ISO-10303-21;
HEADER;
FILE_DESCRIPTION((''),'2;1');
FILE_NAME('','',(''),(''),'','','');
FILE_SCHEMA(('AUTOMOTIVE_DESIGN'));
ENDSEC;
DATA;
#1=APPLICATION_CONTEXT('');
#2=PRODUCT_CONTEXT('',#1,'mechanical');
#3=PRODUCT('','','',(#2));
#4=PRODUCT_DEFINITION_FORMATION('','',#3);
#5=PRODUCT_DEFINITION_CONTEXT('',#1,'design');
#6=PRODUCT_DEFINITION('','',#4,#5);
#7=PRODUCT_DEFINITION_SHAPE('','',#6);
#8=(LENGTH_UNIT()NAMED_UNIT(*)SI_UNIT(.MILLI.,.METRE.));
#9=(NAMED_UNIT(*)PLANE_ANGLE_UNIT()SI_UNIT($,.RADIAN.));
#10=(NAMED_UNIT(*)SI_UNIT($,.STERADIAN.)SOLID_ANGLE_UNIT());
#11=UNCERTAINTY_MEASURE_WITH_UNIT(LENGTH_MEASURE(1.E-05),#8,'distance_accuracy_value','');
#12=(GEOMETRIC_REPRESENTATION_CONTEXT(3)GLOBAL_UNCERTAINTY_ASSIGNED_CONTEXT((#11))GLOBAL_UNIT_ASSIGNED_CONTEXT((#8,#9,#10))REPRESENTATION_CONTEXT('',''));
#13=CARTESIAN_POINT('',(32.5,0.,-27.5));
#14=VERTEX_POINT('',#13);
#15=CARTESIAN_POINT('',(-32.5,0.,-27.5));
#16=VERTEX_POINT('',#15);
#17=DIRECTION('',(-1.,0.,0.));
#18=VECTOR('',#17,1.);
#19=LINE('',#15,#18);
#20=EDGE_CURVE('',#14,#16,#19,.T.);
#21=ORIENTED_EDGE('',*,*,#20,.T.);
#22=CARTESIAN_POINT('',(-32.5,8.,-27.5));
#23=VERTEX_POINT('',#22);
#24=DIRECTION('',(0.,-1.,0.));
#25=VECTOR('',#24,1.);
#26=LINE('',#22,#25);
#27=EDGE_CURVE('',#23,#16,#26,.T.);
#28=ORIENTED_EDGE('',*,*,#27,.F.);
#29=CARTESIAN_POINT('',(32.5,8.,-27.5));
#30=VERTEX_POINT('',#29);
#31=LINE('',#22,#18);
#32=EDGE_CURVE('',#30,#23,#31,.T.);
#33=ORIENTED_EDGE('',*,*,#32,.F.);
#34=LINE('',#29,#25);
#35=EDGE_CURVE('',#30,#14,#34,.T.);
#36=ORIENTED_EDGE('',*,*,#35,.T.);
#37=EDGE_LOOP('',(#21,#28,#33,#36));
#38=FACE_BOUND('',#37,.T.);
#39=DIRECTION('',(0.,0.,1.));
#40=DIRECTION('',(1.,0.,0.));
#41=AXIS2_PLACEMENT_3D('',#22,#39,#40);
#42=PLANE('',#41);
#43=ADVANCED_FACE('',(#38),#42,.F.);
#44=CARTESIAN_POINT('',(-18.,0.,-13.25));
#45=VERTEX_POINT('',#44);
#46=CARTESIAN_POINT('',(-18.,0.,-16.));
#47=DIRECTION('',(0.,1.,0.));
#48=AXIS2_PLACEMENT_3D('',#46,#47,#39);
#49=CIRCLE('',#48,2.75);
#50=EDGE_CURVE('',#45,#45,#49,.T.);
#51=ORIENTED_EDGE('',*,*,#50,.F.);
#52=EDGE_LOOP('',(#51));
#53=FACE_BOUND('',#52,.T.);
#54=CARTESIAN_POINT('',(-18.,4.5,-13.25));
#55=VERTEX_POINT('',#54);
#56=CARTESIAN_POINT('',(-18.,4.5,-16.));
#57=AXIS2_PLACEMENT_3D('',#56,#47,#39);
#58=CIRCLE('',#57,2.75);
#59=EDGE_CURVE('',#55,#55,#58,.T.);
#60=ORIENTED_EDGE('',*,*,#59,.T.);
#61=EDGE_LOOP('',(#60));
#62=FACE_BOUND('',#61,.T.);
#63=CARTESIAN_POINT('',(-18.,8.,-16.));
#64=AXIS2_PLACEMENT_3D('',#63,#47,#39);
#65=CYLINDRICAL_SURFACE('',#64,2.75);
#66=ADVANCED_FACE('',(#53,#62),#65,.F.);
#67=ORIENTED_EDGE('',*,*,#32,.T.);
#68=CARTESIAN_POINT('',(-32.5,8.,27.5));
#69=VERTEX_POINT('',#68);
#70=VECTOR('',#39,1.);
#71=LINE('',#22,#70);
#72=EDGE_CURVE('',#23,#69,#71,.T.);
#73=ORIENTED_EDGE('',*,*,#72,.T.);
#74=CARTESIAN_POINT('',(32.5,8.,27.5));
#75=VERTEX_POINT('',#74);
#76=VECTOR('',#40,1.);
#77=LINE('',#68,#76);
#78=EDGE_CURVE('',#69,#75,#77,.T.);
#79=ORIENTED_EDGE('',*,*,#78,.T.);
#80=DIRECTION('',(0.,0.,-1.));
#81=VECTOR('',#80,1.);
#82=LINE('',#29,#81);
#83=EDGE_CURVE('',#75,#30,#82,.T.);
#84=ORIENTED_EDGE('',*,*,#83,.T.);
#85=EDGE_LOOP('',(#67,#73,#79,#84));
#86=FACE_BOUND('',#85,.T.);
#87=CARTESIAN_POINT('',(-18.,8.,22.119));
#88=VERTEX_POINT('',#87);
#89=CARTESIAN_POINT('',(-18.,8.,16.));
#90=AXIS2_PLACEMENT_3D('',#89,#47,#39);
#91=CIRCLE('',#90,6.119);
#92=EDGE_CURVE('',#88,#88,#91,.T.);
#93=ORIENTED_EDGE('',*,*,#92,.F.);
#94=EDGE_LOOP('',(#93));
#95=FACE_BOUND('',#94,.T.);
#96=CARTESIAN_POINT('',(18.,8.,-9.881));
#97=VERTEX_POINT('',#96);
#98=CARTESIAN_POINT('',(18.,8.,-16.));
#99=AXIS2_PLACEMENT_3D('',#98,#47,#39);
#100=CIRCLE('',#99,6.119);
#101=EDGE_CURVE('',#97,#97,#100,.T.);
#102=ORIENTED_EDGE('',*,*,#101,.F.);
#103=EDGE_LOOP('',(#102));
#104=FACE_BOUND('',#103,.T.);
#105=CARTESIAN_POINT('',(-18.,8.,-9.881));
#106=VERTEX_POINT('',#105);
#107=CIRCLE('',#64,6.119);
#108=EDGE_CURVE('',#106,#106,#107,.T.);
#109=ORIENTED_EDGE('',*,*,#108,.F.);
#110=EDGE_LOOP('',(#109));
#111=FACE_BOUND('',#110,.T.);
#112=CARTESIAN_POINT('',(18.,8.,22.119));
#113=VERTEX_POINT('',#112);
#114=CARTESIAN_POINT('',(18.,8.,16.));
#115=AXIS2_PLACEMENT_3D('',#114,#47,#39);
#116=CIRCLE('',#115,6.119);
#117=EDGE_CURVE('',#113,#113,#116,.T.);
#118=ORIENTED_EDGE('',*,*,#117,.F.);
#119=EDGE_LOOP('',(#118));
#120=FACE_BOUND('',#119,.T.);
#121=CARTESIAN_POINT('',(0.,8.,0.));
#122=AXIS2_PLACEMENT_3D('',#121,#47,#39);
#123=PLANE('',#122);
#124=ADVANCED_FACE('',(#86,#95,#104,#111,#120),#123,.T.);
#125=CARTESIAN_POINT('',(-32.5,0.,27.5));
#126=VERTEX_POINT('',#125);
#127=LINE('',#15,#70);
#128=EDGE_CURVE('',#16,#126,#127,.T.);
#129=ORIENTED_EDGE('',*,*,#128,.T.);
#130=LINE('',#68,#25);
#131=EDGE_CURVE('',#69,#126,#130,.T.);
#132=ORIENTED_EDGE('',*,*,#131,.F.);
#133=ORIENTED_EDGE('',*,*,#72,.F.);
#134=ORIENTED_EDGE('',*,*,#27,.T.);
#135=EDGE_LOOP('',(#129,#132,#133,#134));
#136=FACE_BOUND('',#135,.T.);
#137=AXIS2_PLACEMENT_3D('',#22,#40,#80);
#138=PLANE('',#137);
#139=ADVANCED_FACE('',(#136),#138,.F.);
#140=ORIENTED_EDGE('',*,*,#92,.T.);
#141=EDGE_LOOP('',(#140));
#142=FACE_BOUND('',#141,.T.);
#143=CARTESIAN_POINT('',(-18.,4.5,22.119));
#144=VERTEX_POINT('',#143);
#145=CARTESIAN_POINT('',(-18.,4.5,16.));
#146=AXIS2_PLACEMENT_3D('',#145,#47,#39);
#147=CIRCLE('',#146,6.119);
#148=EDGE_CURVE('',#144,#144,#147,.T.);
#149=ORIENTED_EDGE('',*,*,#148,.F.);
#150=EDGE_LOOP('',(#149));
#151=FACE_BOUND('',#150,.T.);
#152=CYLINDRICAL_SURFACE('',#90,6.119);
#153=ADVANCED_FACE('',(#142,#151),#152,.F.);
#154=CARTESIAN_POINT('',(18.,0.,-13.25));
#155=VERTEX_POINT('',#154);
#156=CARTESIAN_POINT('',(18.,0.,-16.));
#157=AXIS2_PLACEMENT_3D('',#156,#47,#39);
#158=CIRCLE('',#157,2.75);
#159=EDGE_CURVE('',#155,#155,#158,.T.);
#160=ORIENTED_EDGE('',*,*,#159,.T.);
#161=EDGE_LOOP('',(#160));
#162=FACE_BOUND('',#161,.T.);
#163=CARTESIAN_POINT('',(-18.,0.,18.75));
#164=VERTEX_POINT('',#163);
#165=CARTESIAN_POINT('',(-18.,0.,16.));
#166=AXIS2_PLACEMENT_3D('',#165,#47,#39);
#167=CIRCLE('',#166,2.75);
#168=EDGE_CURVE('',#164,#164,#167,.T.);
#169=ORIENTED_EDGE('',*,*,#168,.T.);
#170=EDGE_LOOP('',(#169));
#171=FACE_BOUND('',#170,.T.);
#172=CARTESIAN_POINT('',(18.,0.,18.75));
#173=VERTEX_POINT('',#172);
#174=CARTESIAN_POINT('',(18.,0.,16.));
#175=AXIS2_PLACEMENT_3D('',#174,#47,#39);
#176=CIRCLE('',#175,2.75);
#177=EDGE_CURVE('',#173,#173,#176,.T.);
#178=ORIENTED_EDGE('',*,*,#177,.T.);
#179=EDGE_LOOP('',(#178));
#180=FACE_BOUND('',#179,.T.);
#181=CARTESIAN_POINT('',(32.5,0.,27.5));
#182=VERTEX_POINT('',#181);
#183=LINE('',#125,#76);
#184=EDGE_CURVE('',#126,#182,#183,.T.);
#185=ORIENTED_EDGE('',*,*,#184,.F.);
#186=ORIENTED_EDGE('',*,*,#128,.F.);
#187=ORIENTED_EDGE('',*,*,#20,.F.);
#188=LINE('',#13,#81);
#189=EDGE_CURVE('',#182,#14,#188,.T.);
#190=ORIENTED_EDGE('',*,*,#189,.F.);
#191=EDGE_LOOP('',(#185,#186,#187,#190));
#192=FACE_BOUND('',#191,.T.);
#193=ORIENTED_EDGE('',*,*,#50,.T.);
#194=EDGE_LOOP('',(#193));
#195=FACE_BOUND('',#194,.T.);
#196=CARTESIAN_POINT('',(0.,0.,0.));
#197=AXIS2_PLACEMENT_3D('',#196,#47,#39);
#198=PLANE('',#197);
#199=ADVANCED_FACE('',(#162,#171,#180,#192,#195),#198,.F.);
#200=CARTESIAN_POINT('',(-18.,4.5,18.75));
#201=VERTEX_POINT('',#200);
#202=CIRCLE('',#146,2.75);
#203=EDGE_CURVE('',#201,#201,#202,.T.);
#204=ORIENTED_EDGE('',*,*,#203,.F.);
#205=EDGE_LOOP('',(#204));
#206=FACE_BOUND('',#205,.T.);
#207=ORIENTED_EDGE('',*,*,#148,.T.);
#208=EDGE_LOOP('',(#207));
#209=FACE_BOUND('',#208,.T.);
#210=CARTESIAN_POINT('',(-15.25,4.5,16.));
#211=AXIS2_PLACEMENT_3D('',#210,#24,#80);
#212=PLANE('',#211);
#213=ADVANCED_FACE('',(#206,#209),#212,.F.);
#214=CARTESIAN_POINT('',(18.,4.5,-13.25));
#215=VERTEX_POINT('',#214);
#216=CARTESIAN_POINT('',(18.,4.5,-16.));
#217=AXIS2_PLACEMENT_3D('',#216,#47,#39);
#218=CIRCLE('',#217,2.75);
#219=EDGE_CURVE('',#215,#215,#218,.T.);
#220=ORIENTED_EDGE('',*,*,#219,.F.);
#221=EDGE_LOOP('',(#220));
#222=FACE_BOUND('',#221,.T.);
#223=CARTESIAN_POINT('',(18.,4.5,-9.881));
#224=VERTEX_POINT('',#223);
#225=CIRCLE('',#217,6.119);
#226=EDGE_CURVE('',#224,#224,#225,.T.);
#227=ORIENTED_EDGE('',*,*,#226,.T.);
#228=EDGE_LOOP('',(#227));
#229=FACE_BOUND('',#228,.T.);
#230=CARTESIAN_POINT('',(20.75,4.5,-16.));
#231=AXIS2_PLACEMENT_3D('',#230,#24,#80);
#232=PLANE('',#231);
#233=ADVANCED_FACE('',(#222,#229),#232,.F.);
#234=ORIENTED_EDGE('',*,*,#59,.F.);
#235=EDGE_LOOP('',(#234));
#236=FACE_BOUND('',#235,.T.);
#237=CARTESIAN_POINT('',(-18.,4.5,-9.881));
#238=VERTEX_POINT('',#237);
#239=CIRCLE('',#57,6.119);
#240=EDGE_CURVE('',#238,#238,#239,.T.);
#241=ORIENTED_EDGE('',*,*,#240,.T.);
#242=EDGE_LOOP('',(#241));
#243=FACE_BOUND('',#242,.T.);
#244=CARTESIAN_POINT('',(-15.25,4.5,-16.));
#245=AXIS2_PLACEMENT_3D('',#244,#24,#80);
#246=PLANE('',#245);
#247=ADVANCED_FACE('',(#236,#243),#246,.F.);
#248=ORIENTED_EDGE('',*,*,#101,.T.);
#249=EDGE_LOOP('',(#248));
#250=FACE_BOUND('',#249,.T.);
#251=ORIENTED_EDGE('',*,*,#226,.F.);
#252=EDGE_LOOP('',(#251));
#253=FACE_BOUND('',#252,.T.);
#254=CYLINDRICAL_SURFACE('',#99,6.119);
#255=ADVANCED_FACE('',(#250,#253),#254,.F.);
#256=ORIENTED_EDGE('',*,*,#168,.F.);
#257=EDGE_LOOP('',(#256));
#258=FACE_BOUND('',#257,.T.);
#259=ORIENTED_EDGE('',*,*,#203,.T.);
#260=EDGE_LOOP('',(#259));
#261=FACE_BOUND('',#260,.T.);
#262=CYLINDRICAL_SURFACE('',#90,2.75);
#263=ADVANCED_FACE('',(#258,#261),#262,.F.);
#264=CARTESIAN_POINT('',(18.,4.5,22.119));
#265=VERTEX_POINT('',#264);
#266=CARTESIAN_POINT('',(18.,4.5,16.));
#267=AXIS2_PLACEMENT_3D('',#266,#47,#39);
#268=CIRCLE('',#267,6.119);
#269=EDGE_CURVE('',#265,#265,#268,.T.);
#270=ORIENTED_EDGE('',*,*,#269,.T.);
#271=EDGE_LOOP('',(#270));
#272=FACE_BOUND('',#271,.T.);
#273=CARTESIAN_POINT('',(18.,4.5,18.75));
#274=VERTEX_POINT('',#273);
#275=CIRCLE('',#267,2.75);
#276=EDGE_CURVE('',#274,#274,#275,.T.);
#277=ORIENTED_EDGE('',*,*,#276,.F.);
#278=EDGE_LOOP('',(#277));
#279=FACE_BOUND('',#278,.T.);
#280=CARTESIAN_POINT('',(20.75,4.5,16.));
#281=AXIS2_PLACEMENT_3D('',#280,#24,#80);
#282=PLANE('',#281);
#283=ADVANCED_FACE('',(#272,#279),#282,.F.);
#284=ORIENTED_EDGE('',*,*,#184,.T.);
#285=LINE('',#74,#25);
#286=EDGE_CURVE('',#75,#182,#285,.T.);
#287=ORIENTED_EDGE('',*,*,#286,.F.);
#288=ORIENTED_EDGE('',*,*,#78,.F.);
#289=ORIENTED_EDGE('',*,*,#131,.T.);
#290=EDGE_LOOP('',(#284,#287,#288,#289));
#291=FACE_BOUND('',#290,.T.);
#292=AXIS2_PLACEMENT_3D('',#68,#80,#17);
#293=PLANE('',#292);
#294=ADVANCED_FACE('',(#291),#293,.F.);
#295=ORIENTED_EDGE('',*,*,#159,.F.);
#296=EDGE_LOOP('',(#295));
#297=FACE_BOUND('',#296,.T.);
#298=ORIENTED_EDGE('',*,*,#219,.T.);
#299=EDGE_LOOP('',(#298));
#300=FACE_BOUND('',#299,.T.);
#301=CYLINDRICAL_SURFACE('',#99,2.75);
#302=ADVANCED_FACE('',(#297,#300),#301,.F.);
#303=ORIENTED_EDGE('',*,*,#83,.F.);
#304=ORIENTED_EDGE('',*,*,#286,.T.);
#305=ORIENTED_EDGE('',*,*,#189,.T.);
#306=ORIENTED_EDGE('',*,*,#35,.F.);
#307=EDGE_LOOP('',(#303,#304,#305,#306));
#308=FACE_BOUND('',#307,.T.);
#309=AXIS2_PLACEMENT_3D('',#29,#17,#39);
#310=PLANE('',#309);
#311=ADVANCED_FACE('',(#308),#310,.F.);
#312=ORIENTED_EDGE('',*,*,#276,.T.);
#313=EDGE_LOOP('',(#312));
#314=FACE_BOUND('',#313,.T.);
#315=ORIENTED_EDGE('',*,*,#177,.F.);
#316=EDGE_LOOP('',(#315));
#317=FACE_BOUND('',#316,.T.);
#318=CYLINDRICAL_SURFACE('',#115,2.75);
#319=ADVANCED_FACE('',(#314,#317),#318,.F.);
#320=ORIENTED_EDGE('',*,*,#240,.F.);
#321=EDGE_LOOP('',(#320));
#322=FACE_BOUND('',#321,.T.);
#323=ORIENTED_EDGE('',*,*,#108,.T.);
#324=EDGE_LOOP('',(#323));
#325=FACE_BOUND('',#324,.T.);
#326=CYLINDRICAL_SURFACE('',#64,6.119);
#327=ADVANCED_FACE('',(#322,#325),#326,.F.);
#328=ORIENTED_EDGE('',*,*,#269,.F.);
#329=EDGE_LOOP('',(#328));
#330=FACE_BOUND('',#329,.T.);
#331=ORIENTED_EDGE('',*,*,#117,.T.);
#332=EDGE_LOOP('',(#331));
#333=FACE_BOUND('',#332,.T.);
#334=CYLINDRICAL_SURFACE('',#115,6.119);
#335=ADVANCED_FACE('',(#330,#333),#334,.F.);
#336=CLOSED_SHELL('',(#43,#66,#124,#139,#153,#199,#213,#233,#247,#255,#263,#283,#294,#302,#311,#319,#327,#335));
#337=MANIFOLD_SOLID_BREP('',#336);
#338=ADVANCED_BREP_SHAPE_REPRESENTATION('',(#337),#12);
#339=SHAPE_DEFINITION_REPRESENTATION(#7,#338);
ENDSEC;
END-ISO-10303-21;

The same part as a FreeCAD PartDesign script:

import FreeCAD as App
import Part
import Sketcher

V = App.Vector
Q = App.Units.Quantity

doc = App.newDocument("Part")
body = doc.addObject("PartDesign::Body", "Body")

sketch1 = body.newObject("Sketcher::SketchObject", "Sketch")
sketch1.AttachmentSupport = (doc.getObject("XZ_Plane"), [""])
sketch1.MapMode = "FlatFace"
sketch1.addGeometry([
    Part.LineSegment(V(-32, -28, 0), V(-32, 28, 0)),
    Part.LineSegment(V(-32, 28, 0), V(32, 28, 0)),
    Part.LineSegment(V(32, 28, 0), V(32, -28, 0)),
    Part.LineSegment(V(32, -28, 0), V(-32, -28, 0)),
], False)
sketch1.addConstraint([
    Sketcher.Constraint("Coincident", 0, 2, 1, 1),
    Sketcher.Constraint("Coincident", 1, 2, 2, 1),
    Sketcher.Constraint("Coincident", 2, 2, 3, 1),
    Sketcher.Constraint("Coincident", 3, 2, 0, 1),
    Sketcher.Constraint("Vertical", 0),
    Sketcher.Constraint("Horizontal", 1),
    Sketcher.Constraint("Vertical", 2),
    Sketcher.Constraint("Horizontal", 3),
    Sketcher.Constraint("Symmetric", 0, 2, 2, 2, -1, 1),
    Sketcher.Constraint("DistanceX", 1, 1, 1, 2, Q("65 mm")),
    Sketcher.Constraint("DistanceY", 0, 1, 0, 2, Q("55 mm")),
])
pad1 = body.newObject("PartDesign::Pad", "Pad")
pad1.Profile = sketch1
pad1.Length = 8
pad1.Reversed = True

sketch2 = body.newObject("Sketcher::SketchObject", "Sketch001")
sketch2.AttachmentSupport = (doc.getObject("XZ_Plane"), [""])
sketch2.MapMode = "FlatFace"
sketch2.AttachmentOffset = App.Placement(V(0, 0, -8), App.Rotation())
sketch2.addGeometry([
    Part.Circle(V(-18, -16, 0), V(0, 0, 1), 2.8),
    Part.Circle(V(18, -16, 0), V(0, 0, 1), 2.8),
    Part.Circle(V(18, 16, 0), V(0, 0, 1), 2.8),
    Part.Circle(V(-18, 16, 0), V(0, 0, 1), 2.8),
], False)
sketch2.addConstraint([
    Sketcher.Constraint("Equal", 0, 1),
    Sketcher.Constraint("Equal", 1, 2),
    Sketcher.Constraint("Equal", 2, 3),
    Sketcher.Constraint("Symmetric", 0, 3, 2, 3, -1, 1),
    Sketcher.Constraint("Symmetric", 1, 3, 3, 3, -1, 1),
    Sketcher.Constraint("Symmetric", 0, 3, 1, 3, -2),
    Sketcher.Constraint("Diameter", 0, Q("5.5 mm")),
    Sketcher.Constraint("DistanceX", 0, 3, -1, 1, Q("18 mm")),
    Sketcher.Constraint("DistanceY", 0, 3, -1, 1, Q("16 mm")),
])
doc.recompute()
hole = body.newObject("PartDesign::Hole", "Hole")
hole.Profile = sketch2
hole.ThreadType = "None"
hole.Diameter = 5.5
hole.DepthType = "ThroughAll"
hole.HoleCutType = "Counterbore"
hole.HoleCutDiameter = 12.238
hole.HoleCutDepth = 3.5
hole.Reversed = True

doc.recompute()
